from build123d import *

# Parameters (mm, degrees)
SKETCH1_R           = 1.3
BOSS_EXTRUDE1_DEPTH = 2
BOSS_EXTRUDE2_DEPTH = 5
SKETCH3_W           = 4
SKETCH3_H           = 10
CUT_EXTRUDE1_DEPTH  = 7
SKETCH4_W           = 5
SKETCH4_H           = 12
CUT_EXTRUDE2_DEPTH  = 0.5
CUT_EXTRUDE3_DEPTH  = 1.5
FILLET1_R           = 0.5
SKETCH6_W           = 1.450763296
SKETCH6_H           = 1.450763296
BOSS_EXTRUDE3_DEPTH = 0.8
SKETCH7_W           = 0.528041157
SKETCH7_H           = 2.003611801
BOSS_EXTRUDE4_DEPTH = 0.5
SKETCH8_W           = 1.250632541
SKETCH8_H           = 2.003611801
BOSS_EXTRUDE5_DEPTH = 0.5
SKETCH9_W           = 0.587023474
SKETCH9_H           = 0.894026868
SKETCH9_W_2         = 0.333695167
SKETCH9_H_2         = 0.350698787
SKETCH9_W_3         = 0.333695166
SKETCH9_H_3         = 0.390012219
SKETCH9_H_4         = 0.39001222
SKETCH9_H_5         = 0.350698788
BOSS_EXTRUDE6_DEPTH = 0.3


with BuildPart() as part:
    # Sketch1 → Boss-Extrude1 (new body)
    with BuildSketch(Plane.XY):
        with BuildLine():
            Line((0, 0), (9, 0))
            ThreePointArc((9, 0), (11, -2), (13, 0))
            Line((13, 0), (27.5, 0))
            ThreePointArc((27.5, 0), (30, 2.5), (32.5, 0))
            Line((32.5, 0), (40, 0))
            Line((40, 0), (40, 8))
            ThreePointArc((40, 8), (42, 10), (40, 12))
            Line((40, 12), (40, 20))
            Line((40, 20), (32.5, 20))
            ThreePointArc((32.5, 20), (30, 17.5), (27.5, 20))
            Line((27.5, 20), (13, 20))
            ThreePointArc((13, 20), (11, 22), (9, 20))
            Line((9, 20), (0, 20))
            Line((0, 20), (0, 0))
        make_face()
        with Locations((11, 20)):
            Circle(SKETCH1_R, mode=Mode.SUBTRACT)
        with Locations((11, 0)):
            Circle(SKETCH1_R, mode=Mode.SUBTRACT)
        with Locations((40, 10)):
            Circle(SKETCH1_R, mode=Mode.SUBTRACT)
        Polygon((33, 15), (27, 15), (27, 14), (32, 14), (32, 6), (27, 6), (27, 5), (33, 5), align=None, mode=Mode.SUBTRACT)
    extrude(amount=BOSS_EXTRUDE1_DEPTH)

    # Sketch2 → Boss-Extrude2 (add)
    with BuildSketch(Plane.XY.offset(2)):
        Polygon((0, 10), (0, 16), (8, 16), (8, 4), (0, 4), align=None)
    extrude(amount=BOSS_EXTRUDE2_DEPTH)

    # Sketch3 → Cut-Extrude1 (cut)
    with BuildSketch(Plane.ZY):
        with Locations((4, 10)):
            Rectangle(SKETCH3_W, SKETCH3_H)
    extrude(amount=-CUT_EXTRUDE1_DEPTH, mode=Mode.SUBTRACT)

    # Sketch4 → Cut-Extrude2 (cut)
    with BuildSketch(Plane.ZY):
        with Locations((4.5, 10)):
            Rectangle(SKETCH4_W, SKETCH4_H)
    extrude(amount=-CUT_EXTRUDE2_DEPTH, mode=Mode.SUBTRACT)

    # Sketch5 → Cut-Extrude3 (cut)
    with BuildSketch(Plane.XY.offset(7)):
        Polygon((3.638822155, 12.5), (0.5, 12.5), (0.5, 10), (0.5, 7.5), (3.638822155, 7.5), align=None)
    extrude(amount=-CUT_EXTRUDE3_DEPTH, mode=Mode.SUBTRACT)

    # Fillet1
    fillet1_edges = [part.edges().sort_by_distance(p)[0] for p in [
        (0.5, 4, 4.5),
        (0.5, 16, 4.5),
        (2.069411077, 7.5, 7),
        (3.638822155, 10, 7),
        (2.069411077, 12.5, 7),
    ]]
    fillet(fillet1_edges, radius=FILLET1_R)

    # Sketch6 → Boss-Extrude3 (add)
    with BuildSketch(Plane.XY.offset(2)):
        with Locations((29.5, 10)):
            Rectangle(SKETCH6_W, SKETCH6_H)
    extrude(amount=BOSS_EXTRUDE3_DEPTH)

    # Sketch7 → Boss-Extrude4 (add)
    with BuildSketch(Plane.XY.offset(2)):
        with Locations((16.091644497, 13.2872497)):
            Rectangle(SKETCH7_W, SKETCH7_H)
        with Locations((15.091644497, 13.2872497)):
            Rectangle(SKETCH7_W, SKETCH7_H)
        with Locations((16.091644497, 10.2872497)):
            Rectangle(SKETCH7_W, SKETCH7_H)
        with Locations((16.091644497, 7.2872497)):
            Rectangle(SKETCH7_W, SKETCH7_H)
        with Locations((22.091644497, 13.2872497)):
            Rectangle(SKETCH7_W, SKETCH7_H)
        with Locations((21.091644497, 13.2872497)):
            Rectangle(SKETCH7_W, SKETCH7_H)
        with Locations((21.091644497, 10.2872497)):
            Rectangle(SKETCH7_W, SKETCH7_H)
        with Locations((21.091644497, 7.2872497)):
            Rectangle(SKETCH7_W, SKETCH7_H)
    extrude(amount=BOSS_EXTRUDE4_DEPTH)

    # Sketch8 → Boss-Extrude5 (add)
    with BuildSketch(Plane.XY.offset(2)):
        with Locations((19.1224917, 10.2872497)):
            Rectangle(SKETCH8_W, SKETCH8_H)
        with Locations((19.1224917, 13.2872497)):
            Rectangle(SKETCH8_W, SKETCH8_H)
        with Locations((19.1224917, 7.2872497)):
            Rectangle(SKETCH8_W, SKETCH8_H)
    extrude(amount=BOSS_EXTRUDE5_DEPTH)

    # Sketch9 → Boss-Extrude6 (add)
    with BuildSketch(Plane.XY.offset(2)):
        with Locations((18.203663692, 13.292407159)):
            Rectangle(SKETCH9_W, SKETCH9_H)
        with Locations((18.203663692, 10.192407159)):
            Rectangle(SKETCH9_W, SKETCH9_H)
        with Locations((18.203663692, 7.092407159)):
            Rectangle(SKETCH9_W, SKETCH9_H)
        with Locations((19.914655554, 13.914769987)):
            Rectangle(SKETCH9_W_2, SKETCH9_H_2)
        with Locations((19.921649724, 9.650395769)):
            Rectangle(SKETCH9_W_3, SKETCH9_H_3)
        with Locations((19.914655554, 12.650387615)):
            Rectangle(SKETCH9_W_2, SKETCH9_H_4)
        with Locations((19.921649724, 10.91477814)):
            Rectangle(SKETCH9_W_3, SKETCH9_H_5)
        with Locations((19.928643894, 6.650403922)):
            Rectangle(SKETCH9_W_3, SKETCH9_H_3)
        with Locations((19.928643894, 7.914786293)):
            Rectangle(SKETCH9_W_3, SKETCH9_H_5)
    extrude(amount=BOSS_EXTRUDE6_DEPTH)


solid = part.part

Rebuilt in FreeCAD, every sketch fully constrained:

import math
import FreeCAD as App
import Part
import Sketcher
from FreeCAD import Vector
Q = App.Units.Quantity


def edges_at(feature, points):
    """Names of the edges that pass closest to the given points."""
    edges = feature.Shape.Edges
    near = lambda p: min(range(len(edges)), key=lambda i: edges[i].distToShape(Part.Vertex(*p))[0])
    return sorted({f"Edge{near(p) + 1}" for p in points})


def add_polygon(sketch, points):
    """Adds a closed chain of lines whose ends are joined by coincident constraints."""
    first, n = sketch.GeometryCount, len(points)
    for a, b in zip(points, points[1:] + points[:1]):
        sketch.addGeometry(Part.LineSegment(App.Vector(*a, 0), App.Vector(*b, 0)), False)
    for i in range(n):
        sketch.addConstraint(Sketcher.Constraint("Coincident", first + i, 2, first + (i + 1) % n, 1))

doc = App.newDocument("Part")
body = doc.addObject("PartDesign::Body", "Body")

sketch1 = body.newObject("Sketcher::SketchObject", "Sketch")
sketch1.AttachmentSupport = (doc.getObject("XY_Plane"), [""])
sketch1.MapMode = "FlatFace"
sketch1.addGeometry(Part.LineSegment(Vector(0, 0, 0), Vector(9, 0, 0)), False)
sketch1.addGeometry(Part.ArcOfCircle(Part.Circle(Vector(11, 0, 0), Vector(0, 0, 1), 2), math.radians(180), math.radians(360)), False)
sketch1.addGeometry(Part.LineSegment(Vector(13, 0, 0), Vector(27.5, 0, 0)), False)
sketch1.addGeometry(Part.ArcOfCircle(Part.Circle(Vector(30, 0, 0), Vector(0, 0, 1), 2.5), math.radians(0), math.radians(180)), False)
sketch1.addGeometry(Part.LineSegment(Vector(32.5, 0, 0), Vector(40, 0, 0)), False)
sketch1.addGeometry(Part.LineSegment(Vector(40, 0, 0), Vector(40, 8, 0)), False)
sketch1.addGeometry(Part.ArcOfCircle(Part.Circle(Vector(40, 10, 0), Vector(0, 0, 1), 2), math.radians(-90), math.radians(90)), False)
sketch1.addGeometry(Part.LineSegment(Vector(40, 12, 0), Vector(40, 20, 0)), False)
sketch1.addGeometry(Part.LineSegment(Vector(40, 20, 0), Vector(32.5, 20, 0)), False)
sketch1.addGeometry(Part.ArcOfCircle(Part.Circle(Vector(30, 20, 0), Vector(0, 0, 1), 2.5), math.radians(180), math.radians(360)), False)
sketch1.addGeometry(Part.LineSegment(Vector(27.5, 20, 0), Vector(13, 20, 0)), False)
sketch1.addGeometry(Part.ArcOfCircle(Part.Circle(Vector(11, 20, 0), Vector(0, 0, 1), 2), math.radians(0), math.radians(180)), False)
sketch1.addGeometry(Part.LineSegment(Vector(9, 20, 0), Vector(0, 20, 0)), False)
sketch1.addGeometry(Part.LineSegment(Vector(0, 20, 0), Vector(0, 0, 0)), False)
sketch1.addGeometry(Part.Circle(Vector(11, 0, 0), Vector(0, 0, 1), 1.3), False)
sketch1.addGeometry(Part.Circle(Vector(11, 20, 0), Vector(0, 0, 1), 1.3), False)
add_polygon(sketch1, [(27, 15), (33, 15), (33, 5), (27, 5), (27, 6), (32, 6), (32, 14), (27, 14)])
sketch1.addGeometry(Part.Circle(Vector(40, 10, 0), Vector(0, 0, 1), 1.3), False)
sketch1.addConstraint([
    Sketcher.Constraint("Coincident", 0, 2, 1, 1),
    Sketcher.Constraint("Coincident", 1, 2, 2, 1),
    Sketcher.Constraint("Coincident", 2, 2, 3, 2),
    Sketcher.Constraint("Coincident", 3, 1, 4, 1),
    Sketcher.Constraint("Coincident", 4, 2, 5, 1),
    Sketcher.Constraint("Coincident", 5, 2, 6, 1),
    Sketcher.Constraint("Coincident", 6, 2, 7, 1),
    Sketcher.Constraint("Coincident", 7, 2, 8, 1),
    Sketcher.Constraint("Coincident", 8, 2, 9, 2),
    Sketcher.Constraint("Coincident", 9, 1, 10, 1),
    Sketcher.Constraint("Coincident", 10, 2, 11, 1),
    Sketcher.Constraint("Coincident", 11, 2, 12, 1),
    Sketcher.Constraint("Coincident", 12, 2, 13, 1),
    Sketcher.Constraint("Coincident", 13, 2, 0, 1),
    Sketcher.Constraint("Horizontal", 0),
    Sketcher.Constraint("Horizontal", 2),
    Sketcher.Constraint("Horizontal", 4),
    Sketcher.Constraint("Vertical", 5),
    Sketcher.Constraint("Vertical", 7),
    Sketcher.Constraint("Horizontal", 8),
    Sketcher.Constraint("Horizontal", 10),
    Sketcher.Constraint("Horizontal", 12),
    Sketcher.Constraint("Vertical", 13),
    Sketcher.Constraint("Horizontal", 16),
    Sketcher.Constraint("Vertical", 17),
    Sketcher.Constraint("Horizontal", 18),
    Sketcher.Constraint("Vertical", 19),
    Sketcher.Constraint("Horizontal", 20),
    Sketcher.Constraint("Vertical", 21),
    Sketcher.Constraint("Horizontal", 22),
    Sketcher.Constraint("Vertical", 23),
    Sketcher.Constraint("Coincident", 13, 2, -1, 1),
    Sketcher.Constraint("Coincident", 14, 3, 1, 3),
    Sketcher.Constraint("Coincident", 15, 3, 11, 3),
    Sketcher.Constraint("Coincident", 24, 3, 6, 3),
    Sketcher.Constraint("Equal", 1, 6),
    Sketcher.Constraint("Equal", 3, 9),
    Sketcher.Constraint("Equal", 6, 11),
    Sketcher.Constraint("Equal", 14, 15),
    Sketcher.Constraint("Equal", 15, 24),
    Sketcher.Constraint("PointOnObject", 1, 3, -1),
    Sketcher.Constraint("PointOnObject", 3, 3, -1),
    Sketcher.Constraint("PointOnObject", 1, 2, -1),
    Sketcher.Constraint("PointOnObject", 3, 1, -1),
    Sketcher.Constraint("Horizontal", 9, 3, 11, 3),
    Sketcher.Constraint("Horizontal", 15, 3, 7, 2),
    Sketcher.Constraint("Horizontal", 8, 2, 9, 1),
    Sketcher.Constraint("Horizontal", 10, 2, 11, 2),
    Sketcher.Constraint("Vertical", 3, 3, 9, 3),
    Sketcher.Constraint("Vertical", 1, 3, 11, 3),
    Sketcher.Constraint("Vertical", 24, 3, 4, 2),
    Sketcher.Constraint("Vertical", 5, 2, 6, 2),
    Sketcher.Constraint("Vertical", 19, 2, 22, 2),
    Sketcher.Constraint("Equal", 5, 7),
    Sketcher.Constraint("Equal", 7, 21),
    Sketcher.Constraint("Equal", 19, 23),
    Sketcher.Constraint("Radius", 1, Q("2 mm")),
    Sketcher.Constraint("Diameter", 14, Q("2.6 mm")),
    Sketcher.Constraint("Radius", 3, Q("2.5 mm")),
    Sketcher.Constraint("DistanceX", 0, 1, 0, 2, Q("9 mm")),
    Sketcher.Constraint("DistanceX", 16, 1, 16, 2, Q("6 mm")),
    Sketcher.Constraint("DistanceX", 20, 1, 20, 2, Q("5 mm")),
    Sketcher.Constraint("DistanceY", 5, 1, 5, 2, Q("8 mm")),
    Sketcher.Constraint("DistanceY", 17, 2, 17, 1, Q("10 mm")),
    Sketcher.Constraint("DistanceX", 2, 1, 2, 2, Q("14.5 mm")),
    Sketcher.Constraint("DistanceX", 4, 1, 4, 2, Q("7.5 mm")),
    Sketcher.Constraint("DistanceX", -1, 1, 16, 2, Q("33 mm")),
    Sketcher.Constraint("DistanceY", -1, 1, 16, 2, Q("15 mm")),
])
pad1 = body.newObject("PartDesign::Pad", "Pad")
pad1.Profile = sketch1
pad1.Length = 2

sketch2 = body.newObject("Sketcher::SketchObject", "Sketch001")
sketch2.AttachmentSupport = (doc.getObject("XY_Plane"), [""])
sketch2.MapMode = "FlatFace"
sketch2.AttachmentOffset = App.Placement(Vector(0, 0, 2), App.Rotation())
add_polygon(sketch2, [(0, 16), (0, 4), (8, 4), (8, 16)])
sketch2.addConstraint([
    Sketcher.Constraint("Vertical", 0),
    Sketcher.Constraint("Horizontal", 1),
    Sketcher.Constraint("Vertical", 2),
    Sketcher.Constraint("Horizontal", 3),
    Sketcher.Constraint("PointOnObject", 0, 2, -2),
    Sketcher.Constraint("DistanceX", 1, 1, 1, 2, Q("8 mm")),
    Sketcher.Constraint("DistanceY", 0, 2, 0, 1, Q("12 mm")),
    Sketcher.Constraint("DistanceY", -1, 1, 0, 2, Q("4 mm")),
])
pad2 = body.newObject("PartDesign::Pad", "Pad001")
pad2.Profile = sketch2
pad2.Length = 5

sketch3 = body.newObject("Sketcher::SketchObject", "Sketch002")
sketch3.AttachmentSupport = (doc.getObject("YZ_Plane"), [""])
sketch3.MapMode = "FlatFace"
add_polygon(sketch3, [(15, 2), (5, 2), (5, 6), (15, 6)])
sketch3.addConstraint([
    Sketcher.Constraint("Horizontal", 0),
    Sketcher.Constraint("Vertical", 1),
    Sketcher.Constraint("Horizontal", 2),
    Sketcher.Constraint("Vertical", 3),
    Sketcher.Constraint("DistanceX", 0, 2, 0, 1, Q("10 mm")),
    Sketcher.Constraint("DistanceY", 1, 1, 1, 2, Q("4 mm")),
    Sketcher.Constraint("DistanceX", -1, 1, 0, 2, Q("5 mm")),
    Sketcher.Constraint("DistanceY", -1, 1, 0, 2, Q("2 mm")),
])
pocket1 = body.newObject("PartDesign::Pocket", "Pocket")
pocket1.Profile = sketch3
pocket1.Length = 7
pocket1.Reversed = True

sketch4 = body.newObject("Sketcher::SketchObject", "Sketch003")
sketch4.AttachmentSupport = (doc.getObject("YZ_Plane"), [""])
sketch4.MapMode = "FlatFace"
add_polygon(sketch4, [(16, 2), (4, 2), (4, 7), (16, 7)])
sketch4.addConstraint([
    Sketcher.Constraint("Horizontal", 0),
    Sketcher.Constraint("Vertical", 1),
    Sketcher.Constraint("Horizontal", 2),
    Sketcher.Constraint("Vertical", 3),
    Sketcher.Constraint("DistanceX", 0, 2, 0, 1, Q("12 mm")),
    Sketcher.Constraint("DistanceY", 1, 1, 1, 2, Q("5 mm")),
    Sketcher.Constraint("DistanceX", -1, 1, 0, 2, Q("4 mm")),
    Sketcher.Constraint("DistanceY", -1, 1, 0, 2, Q("2 mm")),
])
pocket2 = body.newObject("PartDesign::Pocket", "Pocket001")
pocket2.Profile = sketch4
pocket2.Length = 0.5
pocket2.Reversed = True

sketch5 = body.newObject("Sketcher::SketchObject", "Sketch004")
sketch5.AttachmentSupport = (doc.getObject("XY_Plane"), [""])
sketch5.MapMode = "FlatFace"
sketch5.AttachmentOffset = App.Placement(Vector(0, 0, 7), App.Rotation())
add_polygon(sketch5, [(3.6, 12.5), (0.5, 12.5), (0.5, 7.5), (3.6, 7.5)])
sketch5.addConstraint([
    Sketcher.Constraint("Horizontal", 0),
    Sketcher.Constraint("Vertical", 1),
    Sketcher.Constraint("Horizontal", 2),
    Sketcher.Constraint("Vertical", 3),
    Sketcher.Constraint("DistanceY", 1, 2, 1, 1, Q("5 mm")),
    Sketcher.Constraint("DistanceX", -1, 1, 0, 2, Q("0.5 mm")),
    Sketcher.Constraint("DistanceY", -1, 1, 0, 2, Q("12.5 mm")),
    Sketcher.Constraint("DistanceX", 0, 2, 0, 1, Q("3.138822 mm")),
])
pocket3 = body.newObject("PartDesign::Pocket", "Pocket002")
pocket3.Profile = sketch5
pocket3.Length = 1.5
doc.recompute()

fillet = body.newObject("PartDesign::Fillet", "Fillet")
fillet.Base = (pocket3, edges_at(pocket3, [
    (0.5, 4, 4.5),
    (0.5, 16, 4.5),
    (2.069, 7.5, 7),
    (3.639, 10, 7),
    (2.069, 12.5, 7),
]))
fillet.Radius = 0.5

sketch6 = body.newObject("Sketcher::SketchObject", "Sketch005")
sketch6.AttachmentSupport = (doc.getObject("XY_Plane"), [""])
sketch6.MapMode = "FlatFace"
sketch6.AttachmentOffset = App.Placement(Vector(0, 0, 2), App.Rotation())
add_polygon(sketch6, [(28.8, 10.7), (28.8, 9.3), (30.2, 9.3), (30.2, 10.7)])
sketch6.addConstraint([
    Sketcher.Constraint("Vertical", 0),
    Sketcher.Constraint("Horizontal", 1),
    Sketcher.Constraint("Vertical", 2),
    Sketcher.Constraint("Horizontal", 3),
    Sketcher.Constraint("Equal", 3, 0),
    Sketcher.Constraint("DistanceX", 1, 1, 1, 2, Q("1.450763 mm")),
    Sketcher.Constraint("DistanceX", -1, 1, 0, 2, Q("28.774618 mm")),
    Sketcher.Constraint("DistanceY", -1, 1, 0, 2, Q("9.274618 mm")),
])
pad3 = body.newObject("PartDesign::Pad", "Pad002")
pad3.Profile = sketch6
pad3.Length = 0.8

sketch7 = body.newObject("Sketcher::SketchObject", "Sketch006")
sketch7.AttachmentSupport = (doc.getObject("XY_Plane"), [""])
sketch7.MapMode = "FlatFace"
sketch7.AttachmentOffset = App.Placement(Vector(0, 0, 2), App.Rotation())
add_polygon(sketch7, [(15.8, 14.3), (15.8, 12.3), (16.4, 12.3), (16.4, 14.3)])
add_polygon(sketch7, [(14.8, 14.3), (14.8, 12.3), (15.4, 12.3), (15.4, 14.3)])
add_polygon(sketch7, [(15.8, 11.3), (15.8, 9.3), (16.4, 9.3), (16.4, 11.3)])
add_polygon(sketch7, [(15.8, 8.3), (15.8, 6.3), (16.4, 6.3), (16.4, 8.3)])
add_polygon(sketch7, [(21.8, 14.3), (21.8, 12.3), (22.4, 12.3), (22.4, 14.3)])
add_polygon(sketch7, [(20.8, 14.3), (20.8, 12.3), (21.4, 12.3), (21.4, 14.3)])
add_polygon(sketch7, [(20.8, 11.3), (20.8, 9.3), (21.4, 9.3), (21.4, 11.3)])
add_polygon(sketch7, [(20.8, 8.3), (20.8, 6.3), (21.4, 6.3), (21.4, 8.3)])
sketch7.addConstraint([
    Sketcher.Constraint("Vertical", 0),
    Sketcher.Constraint("Horizontal", 1),
    Sketcher.Constraint("Vertical", 2),
    Sketcher.Constraint("Horizontal", 3),
    Sketcher.Constraint("Vertical", 4),
    Sketcher.Constraint("Horizontal", 5),
    Sketcher.Constraint("Vertical", 6),
    Sketcher.Constraint("Horizontal", 7),
    Sketcher.Constraint("Vertical", 8),
    Sketcher.Constraint("Horizontal", 9),
    Sketcher.Constraint("Vertical", 10),
    Sketcher.Constraint("Horizontal", 11),
    Sketcher.Constraint("Vertical", 12),
    Sketcher.Constraint("Horizontal", 13),
    Sketcher.Constraint("Vertical", 14),
    Sketcher.Constraint("Horizontal", 15),
    Sketcher.Constraint("Vertical", 16),
    Sketcher.Constraint("Horizontal", 17),
    Sketcher.Constraint("Vertical", 18),
    Sketcher.Constraint("Horizontal", 19),
    Sketcher.Constraint("Vertical", 20),
    Sketcher.Constraint("Horizontal", 21),
    Sketcher.Constraint("Vertical", 22),
    Sketcher.Constraint("Horizontal", 23),
    Sketcher.Constraint("Vertical", 24),
    Sketcher.Constraint("Horizontal", 25),
    Sketcher.Constraint("Vertical", 26),
    Sketcher.Constraint("Horizontal", 27),
    Sketcher.Constraint("Vertical", 28),
    Sketcher.Constraint("Horizontal", 29),
    Sketcher.Constraint("Vertical", 30),
    Sketcher.Constraint("Horizontal", 31),
    Sketcher.Constraint("Horizontal", 1, 2, 4, 2),
    Sketcher.Constraint("Horizontal", 3, 2, 6, 2),
    Sketcher.Constraint("Horizontal", 5, 2, 16, 2),
    Sketcher.Constraint("Horizontal", 7, 2, 18, 2),
    Sketcher.Constraint("Horizontal", 17, 2, 20, 2),
    Sketcher.Constraint("Horizontal", 19, 2, 22, 2),
    Sketcher.Constraint("Horizontal", 9, 2, 24, 2),
    Sketcher.Constraint("Horizontal", 11, 2, 26, 2),
    Sketcher.Constraint("Horizontal", 13, 2, 28, 2),
    Sketcher.Constraint("Horizontal", 15, 2, 30, 2),
    Sketcher.Constraint("Vertical", 3, 2, 8, 2),
    Sketcher.Constraint("Vertical", 2, 2, 9, 2),
    Sketcher.Constraint("Vertical", 11, 2, 12, 2),
    Sketcher.Constraint("Vertical", 10, 2, 13, 2),
    Sketcher.Constraint("Vertical", 23, 2, 24, 2),
    Sketcher.Constraint("Vertical", 22, 2, 25, 2),
    Sketcher.Constraint("Vertical", 27, 2, 28, 2),
    Sketcher.Constraint("Vertical", 26, 2, 29, 2),
    Sketcher.Constraint("Equal", 3, 5),
    Sketcher.Constraint("Equal", 15, 17),
    Sketcher.Constraint("Equal", 19, 21),
    Sketcher.Constraint("Equal", 6, 8),
    Sketcher.Constraint("Equal", 10, 12),
    Sketcher.Constraint("DistanceX", 4, 2, 0, 2, Q("1 mm")),
    Sketcher.Constraint("DistanceY", 8, 2, 0, 2, Q("3 mm")),
    Sketcher.Constraint("DistanceY", 12, 2, 8, 2, Q("3 mm")),
    Sketcher.Constraint("DistanceX", 0, 2, 16, 2, Q("6 mm")),
    Sketcher.Constraint("DistanceX", 20, 2, 16, 2, Q("1 mm")),
    Sketcher.Constraint("DistanceX", 1, 1, 1, 2, Q("0.528041 mm")),
    Sketcher.Constraint("DistanceY", 0, 2, 0, 1, Q("2.003612 mm")),
    Sketcher.Constraint("DistanceX", -1, 1, 0, 2, Q("15.827624 mm")),
    Sketcher.Constraint("DistanceY", -1, 1, 0, 2, Q("12.285444 mm")),
])
pad4 = body.newObject("PartDesign::Pad", "Pad003")
pad4.Profile = sketch7
pad4.Length = 0.5

sketch8 = body.newObject("Sketcher::SketchObject", "Sketch007")
sketch8.AttachmentSupport = (doc.getObject("XY_Plane"), [""])
sketch8.MapMode = "FlatFace"
sketch8.AttachmentOffset = App.Placement(Vector(0, 0, 2), App.Rotation())
add_polygon(sketch8, [(18.5, 11.3), (18.5, 9.3), (19.7, 9.3), (19.7, 11.3)])
add_polygon(sketch8, [(18.5, 14.3), (18.5, 12.3), (19.7, 12.3), (19.7, 14.3)])
add_polygon(sketch8, [(18.5, 8.3), (18.5, 6.3), (19.7, 6.3), (19.7, 8.3)])
sketch8.addConstraint([
    Sketcher.Constraint("Vertical", 0),
    Sketcher.Constraint("Horizontal", 1),
    Sketcher.Constraint("Vertical", 2),
    Sketcher.Constraint("Horizontal", 3),
    Sketcher.Constraint("Vertical", 4),
    Sketcher.Constraint("Horizontal", 5),
    Sketcher.Constraint("Vertical", 6),
    Sketcher.Constraint("Horizontal", 7),
    Sketcher.Constraint("Vertical", 8),
    Sketcher.Constraint("Horizontal", 9),
    Sketcher.Constraint("Vertical", 10),
    Sketcher.Constraint("Horizontal", 11),
    Sketcher.Constraint("Vertical", 3, 2, 4, 2),
    Sketcher.Constraint("Vertical", 2, 2, 5, 2),
    Sketcher.Constraint("Vertical", 7, 2, 8, 2),
    Sketcher.Constraint("Vertical", 6, 2, 9, 2),
    Sketcher.Constraint("Equal", 2, 4),
    Sketcher.Constraint("Equal", 6, 8),
    Sketcher.Constraint("DistanceY", 0, 2, 4, 2, Q("3 mm")),
    Sketcher.Constraint("DistanceY", 8, 2, 0, 2, Q("3 mm")),
    Sketcher.Constraint("DistanceY", 0, 2, 0, 1, Q("2.003612 mm")),
    Sketcher.Constraint("DistanceX", 1, 1, 1, 2, Q("1.250633 mm")),
    Sketcher.Constraint("DistanceX", -1, 1, 0, 2, Q("18.497175 mm")),
    Sketcher.Constraint("DistanceY", -1, 1, 0, 2, Q("9.285444 mm")),
])
pad5 = body.newObject("PartDesign::Pad", "Pad004")
pad5.Profile = sketch8
pad5.Length = 0.5

sketch9 = body.newObject("Sketcher::SketchObject", "Sketch008")
sketch9.AttachmentSupport = (doc.getObject("XY_Plane"), [""])
sketch9.MapMode = "FlatFace"
sketch9.AttachmentOffset = App.Placement(Vector(0, 0, 2), App.Rotation())
add_polygon(sketch9, [(17.91, 13.74), (17.91, 12.85), (18.5, 12.85), (18.5, 13.74)])
add_polygon(sketch9, [(17.91, 10.64), (17.91, 9.75), (18.5, 9.75), (18.5, 10.64)])
add_polygon(sketch9, [(17.91, 7.54), (17.91, 6.65), (18.5, 6.65), (18.5, 7.54)])
add_polygon(sketch9, [(19.75, 14.09), (19.75, 13.74), (20.08, 13.74), (20.08, 14.09)])
add_polygon(sketch9, [(19.75, 9.85), (19.75, 9.46), (20.09, 9.46), (20.09, 9.85)])
add_polygon(sketch9, [(19.75, 12.85), (19.75, 12.46), (20.08, 12.46), (20.08, 12.85)])
add_polygon(sketch9, [(19.75, 11.09), (19.75, 10.74), (20.09, 10.74), (20.09, 11.09)])
add_polygon(sketch9, [(19.76, 6.85), (19.76, 6.46), (20.1, 6.46), (20.1, 6.85)])
add_polygon(sketch9, [(19.76, 8.09), (19.76, 7.74), (20.1, 7.74), (20.1, 8.09)])
sketch9.addConstraint([
    Sketcher.Constraint("Vertical", 0),
    Sketcher.Constraint("Horizontal", 1),
    Sketcher.Constraint("Vertical", 2),
    Sketcher.Constraint("Horizontal", 3),
    Sketcher.Constraint("Vertical", 4),
    Sketcher.Constraint("Horizontal", 5),
    Sketcher.Constraint("Vertical", 6),
    Sketcher.Constraint("Horizontal", 7),
    Sketcher.Constraint("Vertical", 8),
    Sketcher.Constraint("Horizontal", 9),
    Sketcher.Constraint("Vertical", 10),
    Sketcher.Constraint("Horizontal", 11),
    Sketcher.Constraint("Vertical", 12),
    Sketcher.Constraint("Horizontal", 13),
    Sketcher.Constraint("Vertical", 14),
    Sketcher.Constraint("Horizontal", 15),
    Sketcher.Constraint("Vertical", 16),
    Sketcher.Constraint("Horizontal", 17),
    Sketcher.Constraint("Vertical", 18),
    Sketcher.Constraint("Horizontal", 19),
    Sketcher.Constraint("Vertical", 20),
    Sketcher.Constraint("Horizontal", 21),
    Sketcher.Constraint("Vertical", 22),
    Sketcher.Constraint("Horizontal", 23),
    Sketcher.Constraint("Vertical", 24),
    Sketcher.Constraint("Horizontal", 25),
    Sketcher.Constraint("Vertical", 26),
    Sketcher.Constraint("Horizontal", 27),
    Sketcher.Constraint("Vertical", 28),
    Sketcher.Constraint("Horizontal", 29),
    Sketcher.Constraint("Vertical", 30),
    Sketcher.Constraint("Horizontal", 31),
    Sketcher.Constraint("Vertical", 32),
    Sketcher.Constraint("Horizontal", 33),
    Sketcher.Constraint("Vertical", 34),
    Sketcher.Constraint("Horizontal", 35),
    Sketcher.Constraint("Horizontal", 3, 2, 12, 2),
    Sketcher.Constraint("Horizontal", 1, 2, 22, 2),
    Sketcher.Constraint("Vertical", 3, 2, 4, 2),
    Sketcher.Constraint("Vertical", 2, 2, 5, 2),
    Sketcher.Constraint("Vertical", 7, 2, 8, 2),
    Sketcher.Constraint("Vertical", 6, 2, 9, 2),
    Sketcher.Constraint("Vertical", 15, 2, 20, 2),
    Sketcher.Constraint("Vertical", 14, 2, 21, 2),
    Sketcher.Constraint("Vertical", 19, 2, 24, 2),
    Sketcher.Constraint("Vertical", 18, 2, 25, 2),
    Sketcher.Constraint("Vertical", 31, 2, 32, 2),
    Sketcher.Constraint("Vertical", 30, 2, 33, 2),
    Sketcher.Constraint("Equal", 15, 17),
    Sketcher.Constraint("Equal", 27, 29),
    Sketcher.Constraint("Equal", 2, 4),
    Sketcher.Constraint("Equal", 6, 8),
    Sketcher.Constraint("Equal", 18, 20),
    Sketcher.Constraint("Equal", 14, 24),
    Sketcher.Constraint("Equal", 22, 28),
    Sketcher.Constraint("Equal", 26, 32),
    Sketcher.Constraint("DistanceY", 4, 2, 0, 2, Q("3.1 mm")),
    Sketcher.Constraint("DistanceY", 8, 2, 4, 2, Q("3.1 mm")),
    Sketcher.Constraint("DistanceY", 12, 2, 12, 1, Q("0.350699 mm")),
    Sketcher.Constraint("DistanceY", -1, 1, 18, 2, Q("9.845402 mm")),
    Sketcher.Constraint("DistanceX", 1, 1, 1, 2, Q("0.587023 mm")),
    Sketcher.Constraint("DistanceX", 13, 1, 13, 2, Q("0.333695 mm")),
    Sketcher.Constraint("DistanceY", 0, 2, 0, 1, Q("0.894027 mm")),
    Sketcher.Constraint("DistanceY", 16, 2, 16, 1, Q("0.390012 mm")),
    Sketcher.Constraint("DistanceX", -1, 1, 0, 2, Q("17.910152 mm")),
    Sketcher.Constraint("DistanceY", -1, 1, 2, 2, Q("13.739421 mm")),
    Sketcher.Constraint("DistanceY", -1, 1, 24, 2, Q("10.739429 mm")),
    Sketcher.Constraint("DistanceX", -1, 1, 29, 2, Q("20.095491 mm")),
    Sketcher.Constraint("DistanceY", -1, 1, 30, 2, Q("6.84541 mm")),
    Sketcher.Constraint("DistanceX", 3, 2, 13, 2, Q("2.171351 mm")),
    Sketcher.Constraint("DistanceX", 4, 2, 16, 2, Q("1.84465 mm")),
    Sketcher.Constraint("DistanceY", 28, 2, 32, 2, Q("1.284039 mm")),
])
pad6 = body.newObject("PartDesign::Pad", "Pad005")
pad6.Profile = sketch9
pad6.Length = 0.3

doc.recompute()
